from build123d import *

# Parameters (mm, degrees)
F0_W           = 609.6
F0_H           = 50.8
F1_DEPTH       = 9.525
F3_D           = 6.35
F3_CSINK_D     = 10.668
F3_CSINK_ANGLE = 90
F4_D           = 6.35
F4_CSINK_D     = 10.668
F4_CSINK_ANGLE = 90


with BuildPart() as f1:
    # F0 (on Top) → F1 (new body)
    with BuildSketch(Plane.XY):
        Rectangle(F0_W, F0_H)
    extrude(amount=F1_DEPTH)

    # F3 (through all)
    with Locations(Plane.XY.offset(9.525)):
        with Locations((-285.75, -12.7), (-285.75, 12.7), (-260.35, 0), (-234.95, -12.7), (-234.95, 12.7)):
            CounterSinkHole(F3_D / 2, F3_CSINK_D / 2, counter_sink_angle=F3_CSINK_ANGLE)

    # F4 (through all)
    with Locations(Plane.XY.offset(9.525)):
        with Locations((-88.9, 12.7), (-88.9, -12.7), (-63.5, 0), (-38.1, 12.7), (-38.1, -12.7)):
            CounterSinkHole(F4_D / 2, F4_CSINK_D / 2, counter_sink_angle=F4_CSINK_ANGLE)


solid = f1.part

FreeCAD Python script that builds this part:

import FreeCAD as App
import Part
import Sketcher
from FreeCAD import Vector
Q = App.Units.Quantity


def add_polygon(sketch, points):
    """Adds a closed chain of lines whose ends are joined by coincident constraints."""
    first, n = sketch.GeometryCount, len(points)
    for a, b in zip(points, points[1:] + points[:1]):
        sketch.addGeometry(Part.LineSegment(App.Vector(*a, 0), App.Vector(*b, 0)), False)
    for i in range(n):
        sketch.addConstraint(Sketcher.Constraint("Coincident", first + i, 2, first + (i + 1) % n, 1))

doc = App.newDocument("Part")
params = doc.addObject("Spreadsheet::Sheet", "Params")
for row, (alias, value) in enumerate([
    ("sketch1_width", "24 in"),
    ("sketch1_height", "2 in"),
    ("pad1_length", "0.375 in"),
    ("sketch2_diameter", "0.25 in"),
    ("hole_diameter", "0.25 in"),
    ("hole_csink_diameter", "0.42 in"),
    ("sketch3_diameter", "0.25 in"),
    ("hole2_diameter", "0.25 in"),
    ("hole2_csink_diameter", "0.42 in"),
], start=1):
    params.set(f"A{row}", alias)
    params.set(f"B{row}", "=" + value)
    params.setAlias(f"B{row}", alias)

body = doc.addObject("PartDesign::Body", "Body")

sketch1 = body.newObject("Sketcher::SketchObject", "Sketch")
sketch1.AttachmentSupport = (doc.getObject("XY_Plane"), [""])
sketch1.MapMode = "FlatFace"
add_polygon(sketch1, [(-305, 25), (-305, -25), (305, -25), (305, 25)])
sketch1.addConstraint([
    Sketcher.Constraint("Vertical", 0),
    Sketcher.Constraint("Horizontal", 1),
    Sketcher.Constraint("Vertical", 2),
    Sketcher.Constraint("Horizontal", 3),
    Sketcher.Constraint("Symmetric", 0, 2, 2, 2, -1, 1),
    Sketcher.Constraint("DistanceX", 1, 1, 1, 2, Q("24 in")),
    Sketcher.Constraint("DistanceY", 0, 2, 0, 1, Q("2 in")),
])
sketch1.setExpression("Constraints[9]", "Params.sketch1_width")
sketch1.setExpression("Constraints[10]", "Params.sketch1_height")
pad1 = body.newObject("PartDesign::Pad", "Pad")
pad1.Profile = sketch1
pad1.setExpression("Length", "Params.pad1_length")

sketch2 = body.newObject("Sketcher::SketchObject", "Sketch001")
sketch2.AttachmentSupport = (doc.getObject("XY_Plane"), [""])
sketch2.MapMode = "FlatFace"
sketch2.AttachmentOffset = App.Placement(Vector(0, 0, 0.375 * 25.4), App.Rotation())
sketch2.addGeometry([
    Part.Circle(Vector(-285.8, -12.7, 0), Vector(0, 0, 1), 3.2),
    Part.Circle(Vector(-285.8, 12.7, 0), Vector(0, 0, 1), 3.2),
    Part.Circle(Vector(-260.4, 0, 0), Vector(0, 0, 1), 3.2),
    Part.Circle(Vector(-234.9, -12.7, 0), Vector(0, 0, 1), 3.2),
    Part.Circle(Vector(-234.9, 12.7, 0), Vector(0, 0, 1), 3.2),
], False)
sketch2.addConstraint([
    Sketcher.Constraint("Equal", 0, 1),
    Sketcher.Constraint("Equal", 1, 2),
    Sketcher.Constraint("Equal", 2, 3),
    Sketcher.Constraint("Equal", 3, 4),
    Sketcher.Constraint("Symmetric", 0, 3, 1, 3, -1),
    Sketcher.Constraint("Symmetric", 3, 3, 4, 3, -1),
    Sketcher.Constraint("PointOnObject", 2, 3, -1),
    Sketcher.Constraint("Horizontal", 0, 3, 3, 3),
    Sketcher.Constraint("Diameter", 0, Q("0.25 in")),
    Sketcher.Constraint("DistanceY", 0, 3, 1, 3, Q("1 in")),
    Sketcher.Constraint("DistanceX", 0, 3, 2, 3, Q("1 in")),
    Sketcher.Constraint("DistanceX", 2, 3, 3, 3, Q("1 in")),
    Sketcher.Constraint("DistanceX", 0, 3, -1, 1, Q("11.25 in")),
])
sketch2.setExpression("Constraints[8]", "Params.sketch2_diameter")
doc.recompute()
hole = body.newObject("PartDesign::Hole", "Hole")
hole.Profile = sketch2
hole.ThreadType = "None"
hole.setExpression("Diameter", "Params.hole_diameter")
hole.DepthType = "ThroughAll"
hole.HoleCutType = "Countersink"
hole.setExpression("HoleCutDiameter", "Params.hole_csink_diameter")
hole.HoleCutCountersinkAngle = 90

sketch3 = body.newObject("Sketcher::SketchObject", "Sketch002")
sketch3.AttachmentSupport = (doc.getObject("XY_Plane"), [""])
sketch3.MapMode = "FlatFace"
sketch3.AttachmentOffset = App.Placement(Vector(0, 0, 0.375 * 25.4), App.Rotation())
sketch3.addGeometry([
    Part.Circle(Vector(-88.9, 12.7, 0), Vector(0, 0, 1), 3.2),
    Part.Circle(Vector(-88.9, -12.7, 0), Vector(0, 0, 1), 3.2),
    Part.Circle(Vector(-63.5, 0, 0), Vector(0, 0, 1), 3.2),
    Part.Circle(Vector(-38.1, 12.7, 0), Vector(0, 0, 1), 3.2),
    Part.Circle(Vector(-38.1, -12.7, 0), Vector(0, 0, 1), 3.2),
], False)
sketch3.addConstraint([
    Sketcher.Constraint("Equal", 0, 1),
    Sketcher.Constraint("Equal", 1, 2),
    Sketcher.Constraint("Equal", 2, 3),
    Sketcher.Constraint("Equal", 3, 4),
    Sketcher.Constraint("Symmetric", 0, 3, 1, 3, -1),
    Sketcher.Constraint("Symmetric", 3, 3, 4, 3, -1),
    Sketcher.Constraint("PointOnObject", 2, 3, -1),
    Sketcher.Constraint("Horizontal", 0, 3, 3, 3),
    Sketcher.Constraint("Diameter", 0, Q("0.25 in")),
    Sketcher.Constraint("DistanceY", 1, 3, 0, 3, Q("1 in")),
    Sketcher.Constraint("DistanceX", 0, 3, 2, 3, Q("1 in")),
    Sketcher.Constraint("DistanceX", 2, 3, 3, 3, Q("1 in")),
    Sketcher.Constraint("DistanceX", 0, 3, -1, 1, Q("3.5 in")),
])
sketch3.setExpression("Constraints[8]", "Params.sketch3_diameter")
doc.recompute()
hole2 = body.newObject("PartDesign::Hole", "Hole001")
hole2.Profile = sketch3
hole2.ThreadType = "None"
hole2.setExpression("Diameter", "Params.hole2_diameter")
hole2.DepthType = "ThroughAll"
hole2.HoleCutType = "Countersink"
hole2.setExpression("HoleCutDiameter", "Params.hole2_csink_diameter")
hole2.HoleCutCountersinkAngle = 90

doc.recompute()
